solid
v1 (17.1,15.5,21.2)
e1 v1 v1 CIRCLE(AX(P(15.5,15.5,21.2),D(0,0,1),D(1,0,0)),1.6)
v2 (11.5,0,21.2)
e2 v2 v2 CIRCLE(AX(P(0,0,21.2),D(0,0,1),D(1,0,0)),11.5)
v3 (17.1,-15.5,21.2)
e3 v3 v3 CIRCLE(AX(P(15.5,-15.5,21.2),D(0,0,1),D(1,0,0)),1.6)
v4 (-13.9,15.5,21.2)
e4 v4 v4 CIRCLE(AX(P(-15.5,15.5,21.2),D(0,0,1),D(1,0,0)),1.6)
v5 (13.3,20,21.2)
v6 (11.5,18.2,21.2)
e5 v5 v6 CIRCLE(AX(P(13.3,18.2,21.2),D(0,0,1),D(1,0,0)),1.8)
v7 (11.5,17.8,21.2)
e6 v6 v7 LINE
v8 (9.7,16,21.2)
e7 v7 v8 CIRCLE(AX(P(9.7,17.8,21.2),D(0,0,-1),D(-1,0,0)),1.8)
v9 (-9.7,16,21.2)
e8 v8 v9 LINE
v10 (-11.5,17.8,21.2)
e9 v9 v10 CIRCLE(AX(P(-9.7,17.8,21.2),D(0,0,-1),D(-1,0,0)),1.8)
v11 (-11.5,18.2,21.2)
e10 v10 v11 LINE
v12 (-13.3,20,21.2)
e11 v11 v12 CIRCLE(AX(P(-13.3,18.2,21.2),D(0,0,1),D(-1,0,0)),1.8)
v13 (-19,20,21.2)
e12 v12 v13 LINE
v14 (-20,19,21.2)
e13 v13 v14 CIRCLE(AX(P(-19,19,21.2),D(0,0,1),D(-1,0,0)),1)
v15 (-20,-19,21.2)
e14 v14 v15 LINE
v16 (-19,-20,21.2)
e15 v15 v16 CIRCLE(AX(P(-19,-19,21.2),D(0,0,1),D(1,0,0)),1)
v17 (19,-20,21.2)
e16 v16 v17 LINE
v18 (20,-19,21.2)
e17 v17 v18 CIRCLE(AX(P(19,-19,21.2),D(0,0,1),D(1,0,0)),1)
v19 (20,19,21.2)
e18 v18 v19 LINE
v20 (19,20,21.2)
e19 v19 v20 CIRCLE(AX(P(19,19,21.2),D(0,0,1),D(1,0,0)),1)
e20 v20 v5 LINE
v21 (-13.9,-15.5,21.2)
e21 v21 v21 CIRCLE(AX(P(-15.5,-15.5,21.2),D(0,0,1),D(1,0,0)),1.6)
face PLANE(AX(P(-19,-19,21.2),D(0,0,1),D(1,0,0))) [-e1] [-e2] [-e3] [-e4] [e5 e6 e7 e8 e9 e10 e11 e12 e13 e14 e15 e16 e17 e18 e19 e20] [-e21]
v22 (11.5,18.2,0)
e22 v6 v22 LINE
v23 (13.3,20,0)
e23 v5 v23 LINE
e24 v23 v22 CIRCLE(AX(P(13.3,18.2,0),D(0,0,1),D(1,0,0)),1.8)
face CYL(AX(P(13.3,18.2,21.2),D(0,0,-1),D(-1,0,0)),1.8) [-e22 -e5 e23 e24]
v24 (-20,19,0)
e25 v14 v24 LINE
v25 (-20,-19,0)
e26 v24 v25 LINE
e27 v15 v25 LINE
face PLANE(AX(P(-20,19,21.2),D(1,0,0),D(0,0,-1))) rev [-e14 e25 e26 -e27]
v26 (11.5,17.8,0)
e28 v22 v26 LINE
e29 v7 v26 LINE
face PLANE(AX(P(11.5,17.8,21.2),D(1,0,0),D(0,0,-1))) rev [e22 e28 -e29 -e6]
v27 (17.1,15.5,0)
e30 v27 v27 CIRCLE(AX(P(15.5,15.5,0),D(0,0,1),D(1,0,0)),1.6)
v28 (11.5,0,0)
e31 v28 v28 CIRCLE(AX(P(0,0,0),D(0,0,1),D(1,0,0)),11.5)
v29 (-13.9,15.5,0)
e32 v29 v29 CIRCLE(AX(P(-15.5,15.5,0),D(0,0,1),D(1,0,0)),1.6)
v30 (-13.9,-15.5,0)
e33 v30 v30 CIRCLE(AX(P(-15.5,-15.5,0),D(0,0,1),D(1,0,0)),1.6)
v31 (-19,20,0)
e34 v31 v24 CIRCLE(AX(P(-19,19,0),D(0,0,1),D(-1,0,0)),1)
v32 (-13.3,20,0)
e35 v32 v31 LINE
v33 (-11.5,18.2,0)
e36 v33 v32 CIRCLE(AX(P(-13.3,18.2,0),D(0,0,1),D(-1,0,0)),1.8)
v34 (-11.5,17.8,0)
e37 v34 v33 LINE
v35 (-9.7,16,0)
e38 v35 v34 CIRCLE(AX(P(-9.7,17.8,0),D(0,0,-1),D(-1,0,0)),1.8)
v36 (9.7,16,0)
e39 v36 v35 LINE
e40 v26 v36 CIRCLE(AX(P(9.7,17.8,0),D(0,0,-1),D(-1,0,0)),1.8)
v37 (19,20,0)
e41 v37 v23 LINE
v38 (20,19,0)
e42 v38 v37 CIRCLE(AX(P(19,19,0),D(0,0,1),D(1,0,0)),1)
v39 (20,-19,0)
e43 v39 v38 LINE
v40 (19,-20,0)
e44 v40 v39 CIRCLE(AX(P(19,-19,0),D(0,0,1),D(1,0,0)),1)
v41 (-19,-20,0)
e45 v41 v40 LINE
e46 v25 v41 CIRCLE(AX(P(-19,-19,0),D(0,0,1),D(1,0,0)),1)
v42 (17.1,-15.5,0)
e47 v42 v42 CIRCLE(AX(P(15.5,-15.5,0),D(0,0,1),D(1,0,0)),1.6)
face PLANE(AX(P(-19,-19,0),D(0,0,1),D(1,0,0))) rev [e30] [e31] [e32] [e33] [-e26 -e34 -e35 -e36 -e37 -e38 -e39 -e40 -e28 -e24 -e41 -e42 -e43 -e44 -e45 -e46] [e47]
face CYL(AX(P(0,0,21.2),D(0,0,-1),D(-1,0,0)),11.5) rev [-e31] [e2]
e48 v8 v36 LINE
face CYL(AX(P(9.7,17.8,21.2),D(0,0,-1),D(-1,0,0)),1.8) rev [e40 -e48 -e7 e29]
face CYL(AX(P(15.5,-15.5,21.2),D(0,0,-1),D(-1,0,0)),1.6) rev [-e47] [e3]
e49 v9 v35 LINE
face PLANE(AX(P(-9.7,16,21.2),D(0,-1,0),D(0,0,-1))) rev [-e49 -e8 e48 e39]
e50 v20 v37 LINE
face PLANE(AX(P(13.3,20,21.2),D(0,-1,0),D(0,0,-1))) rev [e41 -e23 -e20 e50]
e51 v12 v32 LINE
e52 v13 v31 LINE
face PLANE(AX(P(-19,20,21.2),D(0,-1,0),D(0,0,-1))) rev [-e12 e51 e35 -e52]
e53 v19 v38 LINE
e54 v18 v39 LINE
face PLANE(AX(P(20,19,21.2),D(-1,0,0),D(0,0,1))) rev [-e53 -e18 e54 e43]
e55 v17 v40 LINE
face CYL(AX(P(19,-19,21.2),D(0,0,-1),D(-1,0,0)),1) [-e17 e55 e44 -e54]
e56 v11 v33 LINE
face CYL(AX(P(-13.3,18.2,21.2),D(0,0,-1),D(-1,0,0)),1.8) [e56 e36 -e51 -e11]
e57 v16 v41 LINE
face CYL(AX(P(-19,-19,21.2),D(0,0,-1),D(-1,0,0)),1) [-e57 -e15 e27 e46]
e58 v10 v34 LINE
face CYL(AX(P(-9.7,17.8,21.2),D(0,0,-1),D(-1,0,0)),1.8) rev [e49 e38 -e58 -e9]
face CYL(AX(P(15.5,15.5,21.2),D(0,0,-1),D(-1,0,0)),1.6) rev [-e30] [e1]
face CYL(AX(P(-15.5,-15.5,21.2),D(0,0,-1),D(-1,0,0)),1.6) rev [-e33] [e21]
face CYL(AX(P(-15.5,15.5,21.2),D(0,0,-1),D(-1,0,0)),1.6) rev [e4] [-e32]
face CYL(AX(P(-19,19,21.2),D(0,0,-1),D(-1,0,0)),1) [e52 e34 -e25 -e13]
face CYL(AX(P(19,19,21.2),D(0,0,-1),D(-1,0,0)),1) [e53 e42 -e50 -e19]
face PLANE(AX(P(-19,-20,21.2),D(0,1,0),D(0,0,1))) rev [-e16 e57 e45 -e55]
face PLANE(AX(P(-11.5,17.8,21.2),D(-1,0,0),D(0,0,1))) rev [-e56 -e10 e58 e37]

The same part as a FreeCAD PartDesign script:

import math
import FreeCAD as App
import Part
import Sketcher

V = App.Vector

doc = App.newDocument("Part")
body = doc.addObject("PartDesign::Body", "Body")

# Sketch on XY plane
sketch1 = body.newObject("Sketcher::SketchObject", "Sketch")
sketch1.AttachmentSupport = (doc.getObject("XY_Plane"), [""])
sketch1.MapMode = "FlatFace"
sketch1.addGeometry([
    Part.LineSegment(V(-20, 19, 0), V(-20, -19, 0)),  # 0
    Part.ArcOfCircle(Part.Circle(V(-19, -19, 0), V(0, 0, 1), 1), math.radians(-180), math.radians(-90)),  # 1
    Part.LineSegment(V(-19, -20, 0), V(19, -20, 0)),  # 2
    Part.ArcOfCircle(Part.Circle(V(19, -19, 0), V(0, 0, 1), 1), math.radians(-90), math.radians(0)),  # 3
    Part.LineSegment(V(20, -19, 0), V(20, 19, 0)),  # 4
    Part.ArcOfCircle(Part.Circle(V(19, 19, 0), V(0, 0, 1), 1), math.radians(0), math.radians(90)),  # 5
    Part.LineSegment(V(19, 20, 0), V(13.3, 20, 0)),  # 6
    Part.ArcOfCircle(Part.Circle(V(13.3, 18.2, 0), V(0, 0, 1), 1.8), math.radians(90), math.radians(180)),  # 7
    Part.LineSegment(V(11.5, 18.2, 0), V(11.5, 17.8, 0)),  # 8
    Part.ArcOfCircle(Part.Circle(V(9.7, 17.8, 0), V(0, 0, 1), 1.8), math.radians(-90), math.radians(0)),  # 9
    Part.LineSegment(V(9.7, 16, 0), V(-9.7, 16, 0)),  # 10
    Part.ArcOfCircle(Part.Circle(V(-9.7, 17.8, 0), V(0, 0, 1), 1.8), math.radians(180), math.radians(270)),  # 11
    Part.LineSegment(V(-11.5, 17.8, 0), V(-11.5, 18.2, 0)),  # 12
    Part.ArcOfCircle(Part.Circle(V(-13.3, 18.2, 0), V(0, 0, 1), 1.8), math.radians(0), math.radians(90)),  # 13
    Part.LineSegment(V(-13.3, 20, 0), V(-19, 20, 0)),  # 14
    Part.ArcOfCircle(Part.Circle(V(-19, 19, 0), V(0, 0, 1), 1), math.radians(90), math.radians(180)),  # 15
    Part.Circle(V(-15.5, -15.5, 0), V(0, 0, 1), 1.6),  # 16
    Part.Circle(V(15.5, -15.5, 0), V(0, 0, 1), 1.6),  # 17
    Part.Circle(V(-15.5, 15.5, 0), V(0, 0, 1), 1.6),  # 18
    Part.Circle(V(0, 0, 0), V(0, 0, 1), 11.5),  # 19
    Part.Circle(V(15.5, 15.5, 0), V(0, 0, 1), 1.6),  # 20
], False)
sketch1.addConstraint([
    Sketcher.Constraint("Tangent", 0, 2, 1, 1),
    Sketcher.Constraint("Tangent", 1, 2, 2, 1),
    Sketcher.Constraint("Tangent", 2, 2, 3, 1),
    Sketcher.Constraint("Tangent", 3, 2, 4, 1),
    Sketcher.Constraint("Tangent", 4, 2, 5, 1),
    Sketcher.Constraint("Tangent", 5, 2, 6, 1),
    Sketcher.Constraint("Tangent", 6, 2, 7, 1),
    Sketcher.Constraint("Tangent", 7, 2, 8, 1),
    Sketcher.Constraint("Tangent", 8, 2, 9, 2),
    Sketcher.Constraint("Tangent", 9, 1, 10, 1),
    Sketcher.Constraint("Tangent", 10, 2, 11, 2),
    Sketcher.Constraint("Tangent", 11, 1, 12, 1),
    Sketcher.Constraint("Tangent", 12, 2, 13, 1),
    Sketcher.Constraint("Tangent", 13, 2, 14, 1),
    Sketcher.Constraint("Tangent", 14, 2, 15, 1),
    Sketcher.Constraint("Tangent", 15, 2, 0, 1),
    Sketcher.Constraint("Vertical", 0),
    Sketcher.Constraint("Horizontal", 2),
    Sketcher.Constraint("Vertical", 4),
    Sketcher.Constraint("Horizontal", 6),
    Sketcher.Constraint("Vertical", 8),
    Sketcher.Constraint("Horizontal", 10),
    Sketcher.Constraint("Vertical", 12),
    Sketcher.Constraint("Horizontal", 14),
    Sketcher.Constraint("Coincident", 19, 3, -1, 1),
    Sketcher.Constraint("Equal", 1, 3),
    Sketcher.Constraint("Equal", 3, 5),
    Sketcher.Constraint("Equal", 7, 9),
    Sketcher.Constraint("Equal", 9, 11),
    Sketcher.Constraint("Equal", 11, 13),
    Sketcher.Constraint("Equal", 5, 15),
    Sketcher.Constraint("Equal", 16, 17),
    Sketcher.Constraint("Equal", 17, 18),
    Sketcher.Constraint("Equal", 18, 20),
    Sketcher.Constraint("Symmetric", 1, 3, 5, 3, -1, 1),
    Sketcher.Constraint("Symmetric", 17, 3, 18, 3, -1, 1),
    Sketcher.Constraint("Symmetric", 16, 3, 20, 3, -1, 1),
    Sketcher.Constraint("Symmetric", 7, 3, 13, 3, -2),
    Sketcher.Constraint("Symmetric", 16, 3, 17, 3, -2),
    Sketcher.Constraint("Equal", 2, 0),
    Sketcher.Constraint("Diameter", 19, 23.0),
    Sketcher.Constraint("Radius", 1, 1.0),
    Sketcher.Constraint("Diameter", 16, 3.2),
    Sketcher.Constraint("Radius", 7, 1.8),
    Sketcher.Constraint("DistanceX", 2, 1, 2, 2, 38.0),
    Sketcher.Constraint("DistanceX", 6, 2, 6, 1, 5.7),
    Sketcher.Constraint("DistanceY", 8, 2, 8, 1, 0.4),
    Sketcher.Constraint("DistanceX", 16, 3, 17, 3, 31.0),
    Sketcher.Constraint("DistanceY", 16, 3, -1, 1, 15.5),
])
pad1 = body.newObject("PartDesign::Pad", "Pad")
pad1.Profile = sketch1
pad1.Length = 21.2

doc.recompute()
